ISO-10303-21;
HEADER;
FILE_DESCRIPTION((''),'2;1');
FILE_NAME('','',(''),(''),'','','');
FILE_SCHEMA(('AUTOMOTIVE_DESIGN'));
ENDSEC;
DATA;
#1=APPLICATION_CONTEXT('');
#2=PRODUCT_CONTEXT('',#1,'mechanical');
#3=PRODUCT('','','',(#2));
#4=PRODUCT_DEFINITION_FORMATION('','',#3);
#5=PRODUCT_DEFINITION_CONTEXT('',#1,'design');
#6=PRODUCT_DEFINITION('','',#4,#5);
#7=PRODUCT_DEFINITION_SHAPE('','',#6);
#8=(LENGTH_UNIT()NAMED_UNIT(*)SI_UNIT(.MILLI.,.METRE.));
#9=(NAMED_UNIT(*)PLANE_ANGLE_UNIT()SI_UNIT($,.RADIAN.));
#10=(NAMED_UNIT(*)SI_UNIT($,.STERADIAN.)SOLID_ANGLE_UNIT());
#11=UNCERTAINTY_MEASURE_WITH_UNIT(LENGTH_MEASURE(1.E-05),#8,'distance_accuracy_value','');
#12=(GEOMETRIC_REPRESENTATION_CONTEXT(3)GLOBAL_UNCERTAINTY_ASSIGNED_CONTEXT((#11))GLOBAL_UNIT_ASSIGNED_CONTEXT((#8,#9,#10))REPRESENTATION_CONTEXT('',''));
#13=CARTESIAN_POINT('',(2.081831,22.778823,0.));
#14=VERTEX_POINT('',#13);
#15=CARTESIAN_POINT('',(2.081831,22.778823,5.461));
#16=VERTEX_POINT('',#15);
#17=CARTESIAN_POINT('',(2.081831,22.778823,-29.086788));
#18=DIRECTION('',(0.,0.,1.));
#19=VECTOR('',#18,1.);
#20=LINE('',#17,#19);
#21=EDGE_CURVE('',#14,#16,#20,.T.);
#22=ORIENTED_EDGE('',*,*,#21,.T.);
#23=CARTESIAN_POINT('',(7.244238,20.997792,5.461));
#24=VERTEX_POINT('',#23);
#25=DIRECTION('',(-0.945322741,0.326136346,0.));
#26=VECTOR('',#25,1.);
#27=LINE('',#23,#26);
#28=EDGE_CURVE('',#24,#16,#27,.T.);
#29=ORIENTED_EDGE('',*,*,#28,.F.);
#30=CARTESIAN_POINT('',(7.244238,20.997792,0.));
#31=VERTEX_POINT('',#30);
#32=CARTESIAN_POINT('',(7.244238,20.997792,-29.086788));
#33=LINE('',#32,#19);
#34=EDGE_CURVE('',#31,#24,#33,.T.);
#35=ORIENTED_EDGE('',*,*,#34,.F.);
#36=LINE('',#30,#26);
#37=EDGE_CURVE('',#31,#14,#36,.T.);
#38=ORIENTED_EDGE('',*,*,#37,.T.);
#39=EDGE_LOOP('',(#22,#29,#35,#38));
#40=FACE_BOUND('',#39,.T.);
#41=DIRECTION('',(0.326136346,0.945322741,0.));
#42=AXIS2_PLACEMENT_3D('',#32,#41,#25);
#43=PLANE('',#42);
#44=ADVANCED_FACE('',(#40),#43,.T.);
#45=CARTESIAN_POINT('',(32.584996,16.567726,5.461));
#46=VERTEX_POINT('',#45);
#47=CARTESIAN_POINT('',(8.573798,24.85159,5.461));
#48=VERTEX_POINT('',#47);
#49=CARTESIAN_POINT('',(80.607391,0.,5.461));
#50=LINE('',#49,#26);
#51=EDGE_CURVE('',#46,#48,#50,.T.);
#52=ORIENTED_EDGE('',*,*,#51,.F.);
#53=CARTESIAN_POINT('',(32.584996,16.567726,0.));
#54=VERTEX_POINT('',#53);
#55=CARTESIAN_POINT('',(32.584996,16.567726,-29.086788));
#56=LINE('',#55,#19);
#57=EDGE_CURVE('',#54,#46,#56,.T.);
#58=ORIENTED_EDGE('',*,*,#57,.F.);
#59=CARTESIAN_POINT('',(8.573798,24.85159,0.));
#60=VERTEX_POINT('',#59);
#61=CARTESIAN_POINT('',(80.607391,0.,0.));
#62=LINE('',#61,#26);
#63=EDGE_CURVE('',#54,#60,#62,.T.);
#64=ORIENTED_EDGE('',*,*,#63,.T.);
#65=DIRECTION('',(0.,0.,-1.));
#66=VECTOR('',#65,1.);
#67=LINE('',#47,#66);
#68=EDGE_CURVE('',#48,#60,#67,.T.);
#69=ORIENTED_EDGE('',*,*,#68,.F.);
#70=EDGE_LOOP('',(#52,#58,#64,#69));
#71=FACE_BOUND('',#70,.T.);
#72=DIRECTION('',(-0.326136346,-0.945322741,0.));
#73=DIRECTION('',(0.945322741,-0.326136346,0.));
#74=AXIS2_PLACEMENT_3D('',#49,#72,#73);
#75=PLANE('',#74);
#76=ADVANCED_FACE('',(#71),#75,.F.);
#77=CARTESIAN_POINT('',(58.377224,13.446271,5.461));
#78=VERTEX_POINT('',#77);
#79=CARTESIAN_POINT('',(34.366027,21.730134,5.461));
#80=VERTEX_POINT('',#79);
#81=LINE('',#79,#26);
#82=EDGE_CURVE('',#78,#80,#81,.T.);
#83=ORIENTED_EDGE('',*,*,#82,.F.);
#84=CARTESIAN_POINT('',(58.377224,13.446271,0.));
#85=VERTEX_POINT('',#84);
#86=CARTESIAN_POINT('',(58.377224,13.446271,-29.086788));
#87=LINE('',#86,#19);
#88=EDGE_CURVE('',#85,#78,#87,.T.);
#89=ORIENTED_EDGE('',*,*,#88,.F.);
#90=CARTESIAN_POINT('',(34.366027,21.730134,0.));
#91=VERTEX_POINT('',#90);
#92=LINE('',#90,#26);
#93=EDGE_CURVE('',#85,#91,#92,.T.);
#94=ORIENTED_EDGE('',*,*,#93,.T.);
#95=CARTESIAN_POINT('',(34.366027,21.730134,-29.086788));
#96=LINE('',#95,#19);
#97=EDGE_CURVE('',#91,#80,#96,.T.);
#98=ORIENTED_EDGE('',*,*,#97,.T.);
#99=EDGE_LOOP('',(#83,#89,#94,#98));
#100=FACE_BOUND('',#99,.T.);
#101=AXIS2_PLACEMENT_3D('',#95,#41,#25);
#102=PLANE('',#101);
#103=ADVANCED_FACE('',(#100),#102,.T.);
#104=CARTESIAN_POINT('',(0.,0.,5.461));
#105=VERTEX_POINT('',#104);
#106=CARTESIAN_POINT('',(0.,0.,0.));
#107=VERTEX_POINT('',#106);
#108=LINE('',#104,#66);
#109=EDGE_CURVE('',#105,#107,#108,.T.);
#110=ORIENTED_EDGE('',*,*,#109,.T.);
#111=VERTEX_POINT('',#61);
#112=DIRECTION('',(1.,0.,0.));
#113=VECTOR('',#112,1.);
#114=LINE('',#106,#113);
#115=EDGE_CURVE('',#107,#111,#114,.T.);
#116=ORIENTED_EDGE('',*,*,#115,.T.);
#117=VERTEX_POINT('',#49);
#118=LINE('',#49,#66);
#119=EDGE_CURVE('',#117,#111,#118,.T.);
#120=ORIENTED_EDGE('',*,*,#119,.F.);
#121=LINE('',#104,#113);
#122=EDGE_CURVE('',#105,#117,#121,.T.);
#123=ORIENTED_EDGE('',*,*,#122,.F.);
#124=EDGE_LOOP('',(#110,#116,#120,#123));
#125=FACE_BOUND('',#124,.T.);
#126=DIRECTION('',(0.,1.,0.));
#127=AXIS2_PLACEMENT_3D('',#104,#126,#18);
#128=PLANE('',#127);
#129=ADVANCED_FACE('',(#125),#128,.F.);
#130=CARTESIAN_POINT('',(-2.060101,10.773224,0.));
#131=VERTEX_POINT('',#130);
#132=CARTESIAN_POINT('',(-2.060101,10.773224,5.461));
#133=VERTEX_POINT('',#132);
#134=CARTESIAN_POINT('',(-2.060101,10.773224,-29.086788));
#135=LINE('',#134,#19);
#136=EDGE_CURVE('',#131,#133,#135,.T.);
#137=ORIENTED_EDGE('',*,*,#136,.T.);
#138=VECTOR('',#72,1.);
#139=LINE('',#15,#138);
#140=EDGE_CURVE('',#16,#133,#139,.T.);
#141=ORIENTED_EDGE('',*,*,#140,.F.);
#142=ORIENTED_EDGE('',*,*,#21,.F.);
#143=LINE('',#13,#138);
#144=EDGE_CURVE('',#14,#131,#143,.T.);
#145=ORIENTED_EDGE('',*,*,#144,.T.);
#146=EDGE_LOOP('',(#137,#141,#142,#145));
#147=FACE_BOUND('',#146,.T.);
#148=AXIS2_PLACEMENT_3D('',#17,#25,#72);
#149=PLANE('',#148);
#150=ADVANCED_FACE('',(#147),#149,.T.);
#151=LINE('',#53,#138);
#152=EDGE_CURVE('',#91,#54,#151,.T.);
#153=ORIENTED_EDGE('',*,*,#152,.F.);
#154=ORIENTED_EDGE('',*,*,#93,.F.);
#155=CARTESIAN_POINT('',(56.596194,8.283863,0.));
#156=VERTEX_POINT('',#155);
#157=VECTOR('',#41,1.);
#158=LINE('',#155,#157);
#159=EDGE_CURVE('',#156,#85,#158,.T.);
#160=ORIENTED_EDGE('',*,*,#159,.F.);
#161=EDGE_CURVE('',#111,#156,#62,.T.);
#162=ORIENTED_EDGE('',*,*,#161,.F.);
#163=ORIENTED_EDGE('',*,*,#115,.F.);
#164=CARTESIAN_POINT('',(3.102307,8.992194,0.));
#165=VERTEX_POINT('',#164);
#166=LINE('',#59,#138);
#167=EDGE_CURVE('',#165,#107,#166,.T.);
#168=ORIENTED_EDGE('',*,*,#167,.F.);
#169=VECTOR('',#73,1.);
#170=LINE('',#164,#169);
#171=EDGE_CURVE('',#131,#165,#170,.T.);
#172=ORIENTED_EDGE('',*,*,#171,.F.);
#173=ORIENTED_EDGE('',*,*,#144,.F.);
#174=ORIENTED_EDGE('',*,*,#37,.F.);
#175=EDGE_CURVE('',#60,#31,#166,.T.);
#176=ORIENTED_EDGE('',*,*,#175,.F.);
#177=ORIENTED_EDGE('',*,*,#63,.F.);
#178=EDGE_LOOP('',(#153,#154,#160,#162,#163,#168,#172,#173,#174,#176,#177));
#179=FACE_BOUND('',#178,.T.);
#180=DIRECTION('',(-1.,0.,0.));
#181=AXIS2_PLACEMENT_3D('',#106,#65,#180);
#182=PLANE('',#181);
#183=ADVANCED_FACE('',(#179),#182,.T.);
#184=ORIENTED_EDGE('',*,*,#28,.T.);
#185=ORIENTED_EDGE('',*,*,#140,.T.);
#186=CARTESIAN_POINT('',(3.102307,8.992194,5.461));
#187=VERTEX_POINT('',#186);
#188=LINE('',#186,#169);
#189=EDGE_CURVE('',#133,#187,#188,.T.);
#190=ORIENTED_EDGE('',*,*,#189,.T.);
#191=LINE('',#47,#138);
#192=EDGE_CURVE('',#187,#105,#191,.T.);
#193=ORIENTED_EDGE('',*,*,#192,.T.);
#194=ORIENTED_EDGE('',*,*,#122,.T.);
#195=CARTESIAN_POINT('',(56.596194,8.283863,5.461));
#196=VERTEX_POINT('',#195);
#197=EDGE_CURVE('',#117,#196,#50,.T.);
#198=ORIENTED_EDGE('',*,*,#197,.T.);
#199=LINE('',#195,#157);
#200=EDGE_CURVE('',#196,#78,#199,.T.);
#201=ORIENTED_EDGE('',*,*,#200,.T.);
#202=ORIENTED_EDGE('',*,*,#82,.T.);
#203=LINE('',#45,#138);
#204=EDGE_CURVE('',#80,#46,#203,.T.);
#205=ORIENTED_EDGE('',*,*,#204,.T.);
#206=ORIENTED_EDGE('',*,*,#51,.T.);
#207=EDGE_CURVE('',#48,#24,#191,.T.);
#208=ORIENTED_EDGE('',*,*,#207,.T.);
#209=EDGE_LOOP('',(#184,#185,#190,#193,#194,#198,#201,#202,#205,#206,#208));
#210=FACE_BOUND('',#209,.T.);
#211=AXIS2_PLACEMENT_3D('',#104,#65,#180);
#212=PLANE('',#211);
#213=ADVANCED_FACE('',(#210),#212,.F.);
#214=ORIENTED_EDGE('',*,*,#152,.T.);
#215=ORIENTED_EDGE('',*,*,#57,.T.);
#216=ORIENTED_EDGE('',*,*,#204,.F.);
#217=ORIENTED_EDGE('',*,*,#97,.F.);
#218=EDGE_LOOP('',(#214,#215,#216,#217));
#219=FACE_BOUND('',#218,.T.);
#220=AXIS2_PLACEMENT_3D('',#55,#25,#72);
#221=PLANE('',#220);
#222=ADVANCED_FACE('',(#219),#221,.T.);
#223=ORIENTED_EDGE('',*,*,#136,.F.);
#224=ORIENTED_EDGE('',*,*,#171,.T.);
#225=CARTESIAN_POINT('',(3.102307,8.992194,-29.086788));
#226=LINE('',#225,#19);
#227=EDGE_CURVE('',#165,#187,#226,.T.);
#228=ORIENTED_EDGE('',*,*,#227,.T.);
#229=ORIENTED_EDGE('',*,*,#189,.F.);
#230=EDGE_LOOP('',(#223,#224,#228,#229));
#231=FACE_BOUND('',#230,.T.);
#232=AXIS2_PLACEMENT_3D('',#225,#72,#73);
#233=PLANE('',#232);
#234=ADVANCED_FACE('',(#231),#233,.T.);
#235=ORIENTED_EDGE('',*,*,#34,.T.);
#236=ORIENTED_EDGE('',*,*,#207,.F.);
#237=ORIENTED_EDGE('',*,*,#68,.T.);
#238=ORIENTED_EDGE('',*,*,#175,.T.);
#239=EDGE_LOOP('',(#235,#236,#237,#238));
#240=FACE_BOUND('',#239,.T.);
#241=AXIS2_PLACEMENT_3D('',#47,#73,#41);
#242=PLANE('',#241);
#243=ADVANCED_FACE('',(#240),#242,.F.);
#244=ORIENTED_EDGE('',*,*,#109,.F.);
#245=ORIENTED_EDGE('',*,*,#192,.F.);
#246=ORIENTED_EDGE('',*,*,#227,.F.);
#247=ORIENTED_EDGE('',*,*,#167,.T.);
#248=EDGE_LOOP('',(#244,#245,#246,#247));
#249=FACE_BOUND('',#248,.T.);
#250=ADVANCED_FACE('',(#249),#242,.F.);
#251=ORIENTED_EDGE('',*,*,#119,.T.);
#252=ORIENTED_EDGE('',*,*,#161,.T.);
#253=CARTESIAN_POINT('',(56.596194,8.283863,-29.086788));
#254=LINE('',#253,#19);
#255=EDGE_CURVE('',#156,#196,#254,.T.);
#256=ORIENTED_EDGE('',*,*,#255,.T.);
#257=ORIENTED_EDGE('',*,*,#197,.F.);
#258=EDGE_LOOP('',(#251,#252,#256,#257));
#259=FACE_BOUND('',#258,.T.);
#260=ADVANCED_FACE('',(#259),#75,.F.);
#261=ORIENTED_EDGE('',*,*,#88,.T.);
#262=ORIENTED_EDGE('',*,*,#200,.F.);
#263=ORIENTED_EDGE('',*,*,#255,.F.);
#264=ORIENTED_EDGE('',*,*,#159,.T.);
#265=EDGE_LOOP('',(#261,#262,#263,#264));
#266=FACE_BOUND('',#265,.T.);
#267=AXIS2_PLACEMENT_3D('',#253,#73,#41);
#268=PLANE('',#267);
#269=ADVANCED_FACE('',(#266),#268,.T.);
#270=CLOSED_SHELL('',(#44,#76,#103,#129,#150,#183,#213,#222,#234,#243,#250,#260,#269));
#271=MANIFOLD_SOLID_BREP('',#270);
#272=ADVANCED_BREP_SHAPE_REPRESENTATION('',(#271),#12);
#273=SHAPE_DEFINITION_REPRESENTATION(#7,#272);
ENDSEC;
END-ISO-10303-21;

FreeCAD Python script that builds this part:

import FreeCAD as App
import Part
import Sketcher
Q = App.Units.Quantity

doc = App.newDocument("Part")
body = doc.addObject("PartDesign::Body", "Body")

# Sketch on XY plane
sketch1 = body.newObject("Sketcher::SketchObject", "Sketch")
sketch1.AttachmentSupport = (doc.getObject("XY_Plane"), [""])
sketch1.MapMode = "FlatFace"
sketch1.addGeometry(Part.LineSegment(App.Vector(0, 0, 0), App.Vector(81, 0, 0)), False)
sketch1.addGeometry(Part.LineSegment(App.Vector(81, 0, 0), App.Vector(9, 25, 0)), False)
sketch1.addGeometry(Part.LineSegment(App.Vector(9, 25, 0), App.Vector(0, 0, 0)), False)
sketch1.addConstraint(Sketcher.Constraint("Coincident", 0, 2, 1, 1))
sketch1.addConstraint(Sketcher.Constraint("Coincident", 1, 2, 2, 1))
sketch1.addConstraint(Sketcher.Constraint("Coincident", 2, 2, 0, 1))
sketch1.addConstraint(Sketcher.Constraint("Horizontal", 0))
sketch1.addConstraint(Sketcher.Constraint("Coincident", 2, 2, -1, 1))
sketch1.addConstraint(Sketcher.Constraint("Perpendicular", 1, 2))
sketch1.addConstraint(Sketcher.Constraint("Distance", 1, Q("3 in")))
sketch1.addConstraint(Sketcher.Constraint("Distance", 2, Q("1.035 in")))
pad1 = body.newObject("PartDesign::Pad", "Pad")
pad1.Profile = sketch1
pad1.Length = Q("0.215 in")

# Sketch on XY plane
sketch2 = body.newObject("Sketcher::SketchObject", "Sketch001")
sketch2.AttachmentSupport = (doc.getObject("XY_Plane"), [""])
sketch2.MapMode = "FlatFace"
sketch2.AttachmentOffset = App.Placement(App.Vector(0, 0, 0.215 * 25.4), App.Rotation())
sketch2.addGeometry(Part.LineSegment(App.Vector(7, 21, 0), App.Vector(2, 23, 0)), False)
sketch2.addGeometry(Part.LineSegment(App.Vector(2, 23, 0), App.Vector(-2, 11, 0)), False)
sketch2.addGeometry(Part.LineSegment(App.Vector(-2, 11, 0), App.Vector(3, 9, 0)), False)
sketch2.addGeometry(Part.LineSegment(App.Vector(3, 9, 0), App.Vector(7, 21, 0)), False)
sketch2.addGeometry(Part.LineSegment(App.Vector(33, 17, 0), App.Vector(57, 8, 0)), False)
sketch2.addGeometry(Part.LineSegment(App.Vector(57, 8, 0), App.Vector(58, 13, 0)), False)
sketch2.addGeometry(Part.LineSegment(App.Vector(58, 13, 0), App.Vector(34, 22, 0)), False)
sketch2.addGeometry(Part.LineSegment(App.Vector(34, 22, 0), App.Vector(33, 17, 0)), False)
sketch2.addConstraint(Sketcher.Constraint("Coincident", 0, 2, 1, 1))
sketch2.addConstraint(Sketcher.Constraint("Coincident", 1, 2, 2, 1))
sketch2.addConstraint(Sketcher.Constraint("Coincident", 2, 2, 3, 1))
sketch2.addConstraint(Sketcher.Constraint("Coincident", 3, 2, 0, 1))
sketch2.addConstraint(Sketcher.Constraint("Coincident", 4, 2, 5, 1))
sketch2.addConstraint(Sketcher.Constraint("Coincident", 5, 2, 6, 1))
sketch2.addConstraint(Sketcher.Constraint("Coincident", 6, 2, 7, 1))
sketch2.addConstraint(Sketcher.Constraint("Coincident", 7, 2, 4, 1))
sketch2.addConstraint(Sketcher.Constraint("Perpendicular", 0, 1))
sketch2.addConstraint(Sketcher.Constraint("Perpendicular", 1, 2))
sketch2.addConstraint(Sketcher.Constraint("Perpendicular", 2, 3))
sketch2.addConstraint(Sketcher.Constraint("Perpendicular", 3, 4))
sketch2.addConstraint(Sketcher.Constraint("Perpendicular", 4, 5))
sketch2.addConstraint(Sketcher.Constraint("Perpendicular", 5, 6))
sketch2.addConstraint(Sketcher.Constraint("Perpendicular", 6, 7))
sketch2.addConstraint(Sketcher.Constraint("Equal", 2, 5))
sketch2.addConstraint(Sketcher.Constraint("Distance", 4, Q("1 in")))
sketch2.addConstraint(Sketcher.Constraint("Distance", 1, Q("0.5 in")))
sketch2.addConstraint(Sketcher.Constraint("Distance", 0, Q("0.215 in")))
sketch2.addConstraint(Sketcher.Constraint("DistanceX", 1, 2, -1, 1, 2.060101))
sketch2.addConstraint(Sketcher.Constraint("DistanceY", 1, 2, 0, 2, 12.005599))
sketch2.addConstraint(Sketcher.Constraint("DistanceY", -1, 1, 5, 2, 13.446271))
sketch2.addConstraint(Sketcher.Constraint("DistanceY", 4, 2, 3, 2, 12.713929))
sketch2.addConstraint(Sketcher.Constraint("DistanceX", 3, 2, 6, 2, 27.121788))
pad2 = body.newObject("PartDesign::Pad", "Pad001")
pad2.Profile = sketch2
pad2.Length = Q("0.215 in")
pad2.Reversed = True

doc.recompute()
